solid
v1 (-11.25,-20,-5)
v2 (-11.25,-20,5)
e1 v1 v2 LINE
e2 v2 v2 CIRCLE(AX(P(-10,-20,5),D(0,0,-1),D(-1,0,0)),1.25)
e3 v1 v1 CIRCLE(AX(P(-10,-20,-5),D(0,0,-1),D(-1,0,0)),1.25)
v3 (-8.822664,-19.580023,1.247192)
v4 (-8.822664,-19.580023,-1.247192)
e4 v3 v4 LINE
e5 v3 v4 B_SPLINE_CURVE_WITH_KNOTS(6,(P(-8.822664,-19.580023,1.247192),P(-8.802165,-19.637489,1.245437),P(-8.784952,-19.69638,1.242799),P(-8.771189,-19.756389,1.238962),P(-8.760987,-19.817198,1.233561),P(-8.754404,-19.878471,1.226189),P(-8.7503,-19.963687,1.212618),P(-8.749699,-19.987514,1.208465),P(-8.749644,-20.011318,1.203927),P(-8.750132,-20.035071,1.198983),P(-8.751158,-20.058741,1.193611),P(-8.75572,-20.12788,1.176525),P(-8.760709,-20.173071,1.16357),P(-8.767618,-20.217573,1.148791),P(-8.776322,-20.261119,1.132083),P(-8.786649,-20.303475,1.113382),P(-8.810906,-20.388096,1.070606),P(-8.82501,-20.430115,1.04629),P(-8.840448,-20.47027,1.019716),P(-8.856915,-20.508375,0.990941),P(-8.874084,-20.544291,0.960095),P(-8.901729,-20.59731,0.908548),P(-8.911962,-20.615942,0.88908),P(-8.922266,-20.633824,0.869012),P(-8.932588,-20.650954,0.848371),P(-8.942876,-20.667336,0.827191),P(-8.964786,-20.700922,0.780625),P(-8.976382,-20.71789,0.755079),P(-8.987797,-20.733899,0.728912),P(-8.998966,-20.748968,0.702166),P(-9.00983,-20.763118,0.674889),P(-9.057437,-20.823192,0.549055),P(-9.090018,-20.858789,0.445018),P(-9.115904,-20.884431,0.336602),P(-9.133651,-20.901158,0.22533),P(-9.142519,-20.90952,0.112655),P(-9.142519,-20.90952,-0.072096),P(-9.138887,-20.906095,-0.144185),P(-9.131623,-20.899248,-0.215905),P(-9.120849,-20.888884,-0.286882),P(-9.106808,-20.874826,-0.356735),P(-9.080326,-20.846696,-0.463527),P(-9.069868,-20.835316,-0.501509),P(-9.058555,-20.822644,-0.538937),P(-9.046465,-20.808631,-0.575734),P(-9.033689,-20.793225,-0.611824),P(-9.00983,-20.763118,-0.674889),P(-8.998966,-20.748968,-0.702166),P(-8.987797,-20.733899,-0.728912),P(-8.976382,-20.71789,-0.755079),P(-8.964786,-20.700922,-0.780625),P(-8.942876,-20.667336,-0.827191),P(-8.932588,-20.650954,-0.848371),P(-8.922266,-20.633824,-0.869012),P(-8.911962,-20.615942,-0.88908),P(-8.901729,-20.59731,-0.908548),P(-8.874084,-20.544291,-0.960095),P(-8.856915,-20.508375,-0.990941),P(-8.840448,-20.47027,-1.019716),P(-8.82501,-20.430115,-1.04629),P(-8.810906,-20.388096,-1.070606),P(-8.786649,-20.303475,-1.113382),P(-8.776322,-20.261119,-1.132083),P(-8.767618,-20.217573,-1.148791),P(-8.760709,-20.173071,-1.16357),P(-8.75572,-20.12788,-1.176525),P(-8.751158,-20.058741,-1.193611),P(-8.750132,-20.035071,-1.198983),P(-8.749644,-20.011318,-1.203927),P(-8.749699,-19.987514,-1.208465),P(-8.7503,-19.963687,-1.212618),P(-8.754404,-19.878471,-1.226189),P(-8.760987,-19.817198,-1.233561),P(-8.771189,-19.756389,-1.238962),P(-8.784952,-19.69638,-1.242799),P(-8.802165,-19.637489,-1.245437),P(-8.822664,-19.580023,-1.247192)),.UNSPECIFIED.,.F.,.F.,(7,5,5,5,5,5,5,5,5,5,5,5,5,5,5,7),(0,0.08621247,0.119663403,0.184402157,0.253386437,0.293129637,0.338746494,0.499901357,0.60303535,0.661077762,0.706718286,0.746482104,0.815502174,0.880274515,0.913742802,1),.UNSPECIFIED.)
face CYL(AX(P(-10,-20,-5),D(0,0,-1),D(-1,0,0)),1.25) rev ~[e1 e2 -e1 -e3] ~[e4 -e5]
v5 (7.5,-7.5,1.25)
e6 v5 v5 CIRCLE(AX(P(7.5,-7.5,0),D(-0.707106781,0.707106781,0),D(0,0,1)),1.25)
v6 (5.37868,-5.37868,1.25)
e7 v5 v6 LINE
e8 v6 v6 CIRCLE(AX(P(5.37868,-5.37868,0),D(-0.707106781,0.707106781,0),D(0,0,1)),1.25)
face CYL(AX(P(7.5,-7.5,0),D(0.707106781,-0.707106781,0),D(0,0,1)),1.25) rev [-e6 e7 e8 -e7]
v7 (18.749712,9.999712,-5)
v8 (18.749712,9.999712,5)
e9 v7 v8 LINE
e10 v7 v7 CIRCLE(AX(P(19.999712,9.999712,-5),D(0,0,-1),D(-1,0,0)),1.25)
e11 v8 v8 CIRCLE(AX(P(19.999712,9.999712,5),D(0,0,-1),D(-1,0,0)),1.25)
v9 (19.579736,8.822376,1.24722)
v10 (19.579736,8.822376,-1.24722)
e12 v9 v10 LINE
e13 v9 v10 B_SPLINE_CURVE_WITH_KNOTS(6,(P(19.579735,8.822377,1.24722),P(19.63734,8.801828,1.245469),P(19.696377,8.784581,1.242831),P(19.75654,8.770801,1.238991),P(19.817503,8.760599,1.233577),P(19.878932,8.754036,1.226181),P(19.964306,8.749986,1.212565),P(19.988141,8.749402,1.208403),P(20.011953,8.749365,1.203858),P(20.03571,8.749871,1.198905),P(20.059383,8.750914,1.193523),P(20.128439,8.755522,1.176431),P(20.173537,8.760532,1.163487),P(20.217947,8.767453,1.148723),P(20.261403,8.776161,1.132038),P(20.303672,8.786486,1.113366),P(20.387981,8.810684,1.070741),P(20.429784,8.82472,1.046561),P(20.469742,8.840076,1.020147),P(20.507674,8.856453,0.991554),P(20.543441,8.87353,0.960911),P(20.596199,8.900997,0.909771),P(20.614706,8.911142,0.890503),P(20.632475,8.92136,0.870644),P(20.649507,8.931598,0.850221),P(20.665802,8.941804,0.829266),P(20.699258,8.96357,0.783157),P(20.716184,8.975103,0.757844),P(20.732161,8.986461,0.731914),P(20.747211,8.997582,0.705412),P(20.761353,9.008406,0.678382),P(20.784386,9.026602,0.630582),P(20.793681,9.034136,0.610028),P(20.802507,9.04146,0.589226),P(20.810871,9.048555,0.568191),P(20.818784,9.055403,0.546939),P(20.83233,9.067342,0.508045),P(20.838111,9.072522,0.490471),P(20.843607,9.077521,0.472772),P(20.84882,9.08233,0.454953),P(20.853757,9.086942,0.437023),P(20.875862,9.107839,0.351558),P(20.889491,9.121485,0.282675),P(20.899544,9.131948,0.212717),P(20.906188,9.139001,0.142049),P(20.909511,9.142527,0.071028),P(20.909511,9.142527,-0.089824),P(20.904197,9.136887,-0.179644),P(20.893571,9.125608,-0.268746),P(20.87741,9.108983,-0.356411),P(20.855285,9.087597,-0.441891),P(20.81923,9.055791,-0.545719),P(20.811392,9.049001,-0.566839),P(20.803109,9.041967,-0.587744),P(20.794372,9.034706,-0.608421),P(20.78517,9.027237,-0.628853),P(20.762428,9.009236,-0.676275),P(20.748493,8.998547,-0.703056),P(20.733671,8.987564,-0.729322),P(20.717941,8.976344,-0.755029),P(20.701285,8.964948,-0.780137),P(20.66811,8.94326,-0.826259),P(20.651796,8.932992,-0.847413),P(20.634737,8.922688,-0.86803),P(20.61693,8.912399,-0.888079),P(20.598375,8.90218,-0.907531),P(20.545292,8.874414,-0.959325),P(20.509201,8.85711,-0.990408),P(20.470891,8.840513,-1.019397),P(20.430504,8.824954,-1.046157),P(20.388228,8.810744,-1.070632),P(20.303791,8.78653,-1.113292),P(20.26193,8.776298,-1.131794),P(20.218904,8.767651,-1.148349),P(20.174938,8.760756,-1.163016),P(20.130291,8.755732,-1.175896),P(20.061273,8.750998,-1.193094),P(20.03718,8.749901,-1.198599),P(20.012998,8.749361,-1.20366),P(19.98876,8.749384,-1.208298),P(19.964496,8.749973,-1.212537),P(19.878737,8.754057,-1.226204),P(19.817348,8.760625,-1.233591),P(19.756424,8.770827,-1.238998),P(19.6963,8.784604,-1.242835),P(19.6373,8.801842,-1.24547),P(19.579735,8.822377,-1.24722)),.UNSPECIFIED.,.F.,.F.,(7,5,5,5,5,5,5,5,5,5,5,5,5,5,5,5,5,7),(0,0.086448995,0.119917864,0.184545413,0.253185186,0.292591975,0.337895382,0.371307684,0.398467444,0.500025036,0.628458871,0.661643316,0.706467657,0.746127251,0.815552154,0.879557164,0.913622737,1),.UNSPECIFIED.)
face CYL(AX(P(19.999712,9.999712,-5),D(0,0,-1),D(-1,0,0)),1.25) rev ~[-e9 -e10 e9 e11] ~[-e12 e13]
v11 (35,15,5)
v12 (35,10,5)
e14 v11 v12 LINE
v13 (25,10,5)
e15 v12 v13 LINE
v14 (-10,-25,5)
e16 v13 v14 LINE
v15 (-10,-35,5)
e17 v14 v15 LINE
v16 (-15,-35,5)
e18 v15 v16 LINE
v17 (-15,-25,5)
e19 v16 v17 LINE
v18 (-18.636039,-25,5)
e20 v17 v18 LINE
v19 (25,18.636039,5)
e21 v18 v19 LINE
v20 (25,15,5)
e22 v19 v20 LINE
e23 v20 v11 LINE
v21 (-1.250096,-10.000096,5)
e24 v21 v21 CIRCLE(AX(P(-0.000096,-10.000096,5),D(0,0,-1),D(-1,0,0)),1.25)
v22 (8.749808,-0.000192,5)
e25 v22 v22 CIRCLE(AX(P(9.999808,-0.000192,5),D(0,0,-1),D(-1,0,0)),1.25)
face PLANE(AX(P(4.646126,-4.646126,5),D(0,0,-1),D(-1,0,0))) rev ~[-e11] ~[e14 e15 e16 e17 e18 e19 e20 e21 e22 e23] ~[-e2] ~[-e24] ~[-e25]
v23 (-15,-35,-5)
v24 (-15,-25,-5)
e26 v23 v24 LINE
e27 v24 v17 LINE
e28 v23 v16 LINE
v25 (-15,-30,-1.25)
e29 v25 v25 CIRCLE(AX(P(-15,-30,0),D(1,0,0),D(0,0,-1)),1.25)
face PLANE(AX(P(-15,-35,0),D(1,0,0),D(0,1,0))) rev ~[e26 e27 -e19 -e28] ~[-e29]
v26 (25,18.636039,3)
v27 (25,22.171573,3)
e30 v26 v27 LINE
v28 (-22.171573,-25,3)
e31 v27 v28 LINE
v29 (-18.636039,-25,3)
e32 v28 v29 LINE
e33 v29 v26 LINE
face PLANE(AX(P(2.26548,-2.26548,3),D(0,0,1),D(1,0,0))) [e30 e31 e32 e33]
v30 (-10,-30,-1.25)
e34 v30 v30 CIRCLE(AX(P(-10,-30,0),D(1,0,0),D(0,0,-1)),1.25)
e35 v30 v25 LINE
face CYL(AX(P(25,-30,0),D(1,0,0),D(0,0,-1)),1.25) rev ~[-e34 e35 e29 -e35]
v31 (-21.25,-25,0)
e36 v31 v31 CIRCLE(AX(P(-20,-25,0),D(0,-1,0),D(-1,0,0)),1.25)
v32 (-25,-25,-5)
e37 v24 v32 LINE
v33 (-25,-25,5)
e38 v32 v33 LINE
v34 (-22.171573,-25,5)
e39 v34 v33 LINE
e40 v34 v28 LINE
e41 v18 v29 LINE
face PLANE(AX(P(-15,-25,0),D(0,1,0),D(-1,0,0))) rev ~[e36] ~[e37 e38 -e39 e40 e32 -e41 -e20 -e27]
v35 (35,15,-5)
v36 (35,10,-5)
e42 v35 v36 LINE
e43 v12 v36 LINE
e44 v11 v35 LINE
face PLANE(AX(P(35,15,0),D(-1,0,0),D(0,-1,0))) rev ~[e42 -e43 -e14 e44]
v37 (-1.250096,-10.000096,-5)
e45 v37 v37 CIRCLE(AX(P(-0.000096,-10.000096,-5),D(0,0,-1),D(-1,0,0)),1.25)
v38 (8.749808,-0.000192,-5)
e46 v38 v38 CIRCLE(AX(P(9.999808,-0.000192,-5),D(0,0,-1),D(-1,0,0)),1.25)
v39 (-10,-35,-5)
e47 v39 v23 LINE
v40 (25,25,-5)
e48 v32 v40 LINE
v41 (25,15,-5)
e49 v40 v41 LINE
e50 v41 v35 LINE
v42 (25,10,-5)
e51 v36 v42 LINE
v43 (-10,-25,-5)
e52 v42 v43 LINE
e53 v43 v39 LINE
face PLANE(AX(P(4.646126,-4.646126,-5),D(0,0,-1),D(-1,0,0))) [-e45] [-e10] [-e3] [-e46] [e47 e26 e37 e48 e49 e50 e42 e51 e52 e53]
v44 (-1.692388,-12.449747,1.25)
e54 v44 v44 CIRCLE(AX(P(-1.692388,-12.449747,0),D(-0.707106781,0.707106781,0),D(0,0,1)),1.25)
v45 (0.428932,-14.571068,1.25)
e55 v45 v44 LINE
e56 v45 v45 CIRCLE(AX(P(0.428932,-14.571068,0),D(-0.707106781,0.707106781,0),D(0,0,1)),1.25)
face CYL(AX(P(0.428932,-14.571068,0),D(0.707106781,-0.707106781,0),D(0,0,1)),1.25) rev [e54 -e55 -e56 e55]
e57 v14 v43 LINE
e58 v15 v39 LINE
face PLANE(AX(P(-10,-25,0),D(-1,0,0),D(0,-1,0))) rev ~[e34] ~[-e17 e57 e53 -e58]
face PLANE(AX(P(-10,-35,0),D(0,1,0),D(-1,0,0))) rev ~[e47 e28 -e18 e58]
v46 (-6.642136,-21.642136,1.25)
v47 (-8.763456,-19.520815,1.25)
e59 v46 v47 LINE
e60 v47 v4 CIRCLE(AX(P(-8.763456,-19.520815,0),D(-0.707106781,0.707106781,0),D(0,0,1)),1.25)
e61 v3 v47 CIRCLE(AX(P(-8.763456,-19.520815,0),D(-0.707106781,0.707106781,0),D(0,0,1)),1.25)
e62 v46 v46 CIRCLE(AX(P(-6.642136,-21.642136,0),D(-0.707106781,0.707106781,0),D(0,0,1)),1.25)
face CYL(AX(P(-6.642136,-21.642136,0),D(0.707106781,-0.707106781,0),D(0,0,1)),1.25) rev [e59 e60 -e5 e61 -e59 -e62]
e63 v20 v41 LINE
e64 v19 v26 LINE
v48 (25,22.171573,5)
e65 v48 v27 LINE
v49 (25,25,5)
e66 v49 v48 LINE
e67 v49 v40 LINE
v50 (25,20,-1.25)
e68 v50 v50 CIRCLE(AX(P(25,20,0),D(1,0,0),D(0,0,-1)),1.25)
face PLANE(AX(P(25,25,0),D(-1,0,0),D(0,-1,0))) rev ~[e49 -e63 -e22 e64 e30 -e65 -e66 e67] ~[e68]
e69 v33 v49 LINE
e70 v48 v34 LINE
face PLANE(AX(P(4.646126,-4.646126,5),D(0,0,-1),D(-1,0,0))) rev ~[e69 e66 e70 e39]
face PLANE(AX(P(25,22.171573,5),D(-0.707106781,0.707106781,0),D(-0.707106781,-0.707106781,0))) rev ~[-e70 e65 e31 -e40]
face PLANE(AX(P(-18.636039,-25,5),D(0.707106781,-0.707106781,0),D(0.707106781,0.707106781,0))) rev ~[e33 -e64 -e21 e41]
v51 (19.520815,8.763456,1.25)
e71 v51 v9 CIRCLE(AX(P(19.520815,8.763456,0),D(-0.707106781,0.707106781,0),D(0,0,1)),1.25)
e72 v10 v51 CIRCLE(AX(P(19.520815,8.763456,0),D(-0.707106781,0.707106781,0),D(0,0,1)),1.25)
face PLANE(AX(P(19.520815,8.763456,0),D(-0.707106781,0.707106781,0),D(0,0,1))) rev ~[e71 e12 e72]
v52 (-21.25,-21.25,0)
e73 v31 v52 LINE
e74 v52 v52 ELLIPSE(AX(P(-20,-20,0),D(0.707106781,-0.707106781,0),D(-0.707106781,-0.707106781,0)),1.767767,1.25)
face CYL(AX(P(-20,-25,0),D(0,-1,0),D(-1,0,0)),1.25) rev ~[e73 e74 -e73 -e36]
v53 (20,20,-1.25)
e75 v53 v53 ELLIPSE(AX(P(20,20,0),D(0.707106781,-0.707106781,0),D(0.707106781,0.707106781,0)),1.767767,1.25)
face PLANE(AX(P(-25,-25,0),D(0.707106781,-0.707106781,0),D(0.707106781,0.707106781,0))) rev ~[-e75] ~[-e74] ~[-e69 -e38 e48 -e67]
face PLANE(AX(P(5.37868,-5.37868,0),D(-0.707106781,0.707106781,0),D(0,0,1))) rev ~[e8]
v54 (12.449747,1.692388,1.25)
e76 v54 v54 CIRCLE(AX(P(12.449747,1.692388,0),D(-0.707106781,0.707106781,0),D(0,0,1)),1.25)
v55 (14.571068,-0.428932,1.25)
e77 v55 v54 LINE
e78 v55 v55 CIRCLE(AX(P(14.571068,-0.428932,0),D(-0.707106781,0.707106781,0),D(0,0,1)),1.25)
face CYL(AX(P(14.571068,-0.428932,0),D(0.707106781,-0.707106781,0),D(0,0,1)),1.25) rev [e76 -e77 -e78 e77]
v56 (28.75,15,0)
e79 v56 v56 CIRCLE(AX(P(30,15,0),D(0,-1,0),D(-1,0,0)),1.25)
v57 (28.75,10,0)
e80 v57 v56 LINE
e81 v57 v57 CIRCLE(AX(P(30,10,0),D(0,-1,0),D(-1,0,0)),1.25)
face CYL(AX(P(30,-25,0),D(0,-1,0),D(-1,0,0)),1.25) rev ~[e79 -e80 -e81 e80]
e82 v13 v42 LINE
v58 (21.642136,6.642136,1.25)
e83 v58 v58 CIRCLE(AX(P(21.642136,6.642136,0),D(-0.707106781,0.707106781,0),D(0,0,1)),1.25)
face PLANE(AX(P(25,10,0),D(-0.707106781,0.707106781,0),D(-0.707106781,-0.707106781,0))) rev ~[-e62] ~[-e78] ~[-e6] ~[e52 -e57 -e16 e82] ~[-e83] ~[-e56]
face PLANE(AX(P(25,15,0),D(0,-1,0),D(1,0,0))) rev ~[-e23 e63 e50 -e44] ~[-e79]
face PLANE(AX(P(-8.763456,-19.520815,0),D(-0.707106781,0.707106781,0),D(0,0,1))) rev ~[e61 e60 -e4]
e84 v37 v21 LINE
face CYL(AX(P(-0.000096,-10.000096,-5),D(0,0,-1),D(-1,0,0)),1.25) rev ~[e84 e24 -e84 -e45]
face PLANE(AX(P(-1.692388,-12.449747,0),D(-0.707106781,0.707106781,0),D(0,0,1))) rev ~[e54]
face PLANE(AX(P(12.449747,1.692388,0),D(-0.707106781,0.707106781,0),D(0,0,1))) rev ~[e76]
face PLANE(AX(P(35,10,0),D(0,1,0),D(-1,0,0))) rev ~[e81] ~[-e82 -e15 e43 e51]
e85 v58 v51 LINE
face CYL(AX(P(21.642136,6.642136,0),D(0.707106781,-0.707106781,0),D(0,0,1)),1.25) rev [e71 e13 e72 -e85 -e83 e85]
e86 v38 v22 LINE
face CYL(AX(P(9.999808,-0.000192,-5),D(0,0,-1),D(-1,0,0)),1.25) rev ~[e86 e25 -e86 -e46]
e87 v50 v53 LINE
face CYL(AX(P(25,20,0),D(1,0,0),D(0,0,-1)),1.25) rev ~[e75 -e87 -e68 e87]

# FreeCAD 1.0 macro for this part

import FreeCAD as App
import Part
import Sketcher

V = App.Vector
Q = App.Units.Quantity

doc = App.newDocument("Part")
params = doc.addObject("Spreadsheet::Sheet", "Params")
for row, (alias, value) in enumerate([
    ("sketch1_width", "10 mm"),
    ("sketch1_width2", "5 mm"),
    ("pad1_length", "10 mm"),
    ("sketch2_diameter", "2.5 mm"),
    ("sketch3_diameter", "2.5 mm"),
    ("pocket3_length", "2 mm"),
    ("sketch5_diameter", "2.5 mm"),
    ("pocket4_length", "3 mm"),
    ("linearpattern_pitch", "10 mm"),
    ("sketch6_diameter", "2.5 mm"),
    ("linearpattern2_pitch", "14.142 mm"),
], start=1):
    params.set(f"A{row}", alias)
    params.set(f"B{row}", "=" + value)
    params.setAlias(f"B{row}", alias)

body = doc.addObject("PartDesign::Body", "Body")

# Sketch on XY plane
sketch1 = doc.addObject("Sketcher::SketchObject", "Sketch")
body.addObject(sketch1)
sketch1.AttachmentSupport = (doc.XY_Plane, [""])
sketch1.MapMode = "FlatFace"
sketch1.addGeometry([
    Part.LineSegment(V(25, 25, 0), V(-25, -25, 0)),  # 0
    Part.LineSegment(V(-25, -25, 0), V(-15, -25, 0)),  # 1
    Part.LineSegment(V(-15, -25, 0), V(-15, -35, 0)),  # 2
    Part.LineSegment(V(-15, -35, 0), V(-10, -35, 0)),  # 3
    Part.LineSegment(V(-10, -35, 0), V(-10, -25, 0)),  # 4
    Part.LineSegment(V(-10, -25, 0), V(25, 10, 0)),  # 5
    Part.LineSegment(V(25, 10, 0), V(35, 10, 0)),  # 6
    Part.LineSegment(V(35, 10, 0), V(35, 15, 0)),  # 7
    Part.LineSegment(V(35, 15, 0), V(25, 15, 0)),  # 8
    Part.LineSegment(V(25, 15, 0), V(25, 25, 0)),  # 9
], False)
sketch1.addConstraint([
    Sketcher.Constraint("Coincident", 0, 2, 1, 1),
    Sketcher.Constraint("Coincident", 1, 2, 2, 1),
    Sketcher.Constraint("Coincident", 2, 2, 3, 1),
    Sketcher.Constraint("Coincident", 3, 2, 4, 1),
    Sketcher.Constraint("Coincident", 4, 2, 5, 1),
    Sketcher.Constraint("Coincident", 5, 2, 6, 1),
    Sketcher.Constraint("Coincident", 6, 2, 7, 1),
    Sketcher.Constraint("Coincident", 7, 2, 8, 1),
    Sketcher.Constraint("Coincident", 8, 2, 9, 1),
    Sketcher.Constraint("Coincident", 9, 2, 0, 1),
    Sketcher.Constraint("Horizontal", 1),
    Sketcher.Constraint("Vertical", 2),
    Sketcher.Constraint("Horizontal", 3),
    Sketcher.Constraint("Vertical", 4),
    Sketcher.Constraint("Horizontal", 6),
    Sketcher.Constraint("Vertical", 7),
    Sketcher.Constraint("Horizontal", 8),
    Sketcher.Constraint("Vertical", 9),
    Sketcher.Constraint("Symmetric", 0, 2, 9, 2, -1, 1),
    Sketcher.Constraint("Parallel", 0, 5),
    Sketcher.Constraint("Horizontal", 1, 2, 4, 2),
    Sketcher.Constraint("Vertical", 5, 2, 8, 2),
    Sketcher.Constraint("Equal", 1, 6),
    Sketcher.Constraint("Equal", 8, 2),
    Sketcher.Constraint("Equal", 3, 7),
    Sketcher.Constraint("Equal", 4, 9),
    Sketcher.Constraint("DistanceX", 1, 1, 1, 2, Q("10 mm")),
    Sketcher.Constraint("DistanceX", 3, 1, 3, 2, Q("5 mm")),
    Sketcher.Constraint("DistanceX", 0, 2, -1, 1, Q("25 mm")),
])
sketch1.setExpression("Constraints[26]", "Params.sketch1_width")
sketch1.setExpression("Constraints[27]", "Params.sketch1_width2")
pad1 = doc.addObject("PartDesign::Pad", "Pad")
body.addObject(pad1)
pad1.Profile = sketch1
pad1.setExpression("Length", "Params.pad1_length")
pad1.Midplane = True

# Sketch on YZ plane
sketch2 = doc.addObject("Sketcher::SketchObject", "Sketch001")
body.addObject(sketch2)
sketch2.AttachmentSupport = (doc.YZ_Plane, [""])
sketch2.MapMode = "FlatFace"
sketch2.AttachmentOffset = App.Placement(V(0, 0, 25), App.Rotation())
sketch2.addGeometry([
    Part.Circle(V(-30, 0, 0), V(0, 0, 1), 1.2),
    Part.Circle(V(20, 0, 0), V(0, 0, 1), 1.2),
], False)
sketch2.addConstraint([
    Sketcher.Constraint("Equal", 0, 1),
    Sketcher.Constraint("PointOnObject", 0, 3, -1),
    Sketcher.Constraint("PointOnObject", 1, 3, -1),
    Sketcher.Constraint("Diameter", 0, Q("2.5 mm")),
    Sketcher.Constraint("DistanceX", 0, 3, -1, 1, Q("30 mm")),
    Sketcher.Constraint("DistanceX", -1, 1, 1, 3, Q("20 mm")),
])
sketch2.setExpression("Constraints[3]", "Params.sketch2_diameter")
pocket1 = doc.addObject("PartDesign::Pocket", "Pocket")
body.addObject(pocket1)
pocket1.Profile = sketch2
pocket1.Type = "ThroughAll"

# Sketch on XZ plane
sketch3 = doc.addObject("Sketcher::SketchObject", "Sketch002")
body.addObject(sketch3)
sketch3.AttachmentSupport = (doc.XZ_Plane, [""])
sketch3.MapMode = "FlatFace"
sketch3.AttachmentOffset = App.Placement(V(0, 0, 25), App.Rotation())
sketch3.addGeometry([
    Part.Circle(V(-20, 0, 0), V(0, 0, 1), 1.2),
    Part.Circle(V(30, 0, 0), V(0, 0, 1), 1.2),
], False)
sketch3.addConstraint([
    Sketcher.Constraint("Equal", 0, 1),
    Sketcher.Constraint("PointOnObject", 0, 3, -1),
    Sketcher.Constraint("PointOnObject", 1, 3, -1),
    Sketcher.Constraint("Diameter", 0, Q("2.5 mm")),
    Sketcher.Constraint("DistanceX", 0, 3, -1, 1, Q("20 mm")),
    Sketcher.Constraint("DistanceX", -1, 1, 1, 3, Q("30 mm")),
])
sketch3.setExpression("Constraints[3]", "Params.sketch3_diameter")
pocket2 = doc.addObject("PartDesign::Pocket", "Pocket001")
body.addObject(pocket2)
pocket2.Profile = sketch3
pocket2.Type = "ThroughAll"

# Sketch on XY plane
sketch4 = doc.addObject("Sketcher::SketchObject", "Sketch003")
body.addObject(sketch4)
sketch4.AttachmentSupport = (doc.XY_Plane, [""])
sketch4.MapMode = "FlatFace"
sketch4.AttachmentOffset = App.Placement(V(0, 0, 5), App.Rotation())
sketch4.addGeometry([
    Part.LineSegment(V(25, 22.2, 0), V(-22.2, -25, 0)),
    Part.LineSegment(V(-22.2, -25, 0), V(-18.6, -25, 0)),
    Part.LineSegment(V(-18.6, -25, 0), V(25, 18.6, 0)),
    Part.LineSegment(V(25, 18.6, 0), V(25, 22.2, 0)),
], False)
sketch4.addConstraint([
    Sketcher.Constraint("Coincident", 0, 2, 1, 1),
    Sketcher.Constraint("Coincident", 1, 2, 2, 1),
    Sketcher.Constraint("Coincident", 2, 2, 3, 1),
    Sketcher.Constraint("Coincident", 3, 2, 0, 1),
    Sketcher.Constraint("Horizontal", 1),
    Sketcher.Constraint("Vertical", 3),
    Sketcher.Constraint("Parallel", 0, 2),
    Sketcher.Constraint("Equal", 1, 3),
    Sketcher.Constraint("DistanceY", 0, 2, -1, 1, Q("25 mm")),
    Sketcher.Constraint("DistanceX", -1, 1, 2, 2, Q("25 mm")),
    Sketcher.Constraint("Distance", 0, Q("66.710678 mm")),
    Sketcher.Constraint("Distance", 2, Q("61.710678 mm")),
])
pocket3 = doc.addObject("PartDesign::Pocket", "Pocket002")
body.addObject(pocket3)
pocket3.Profile = sketch4
pocket3.setExpression("Length", "Params.pocket3_length")

# Sketch on an angled plane
sketch5 = doc.addObject("Sketcher::SketchObject", "Sketch004")
body.addObject(sketch5)
sketch5.Placement = App.Placement(V(7.5, -7.5, 0), App.Rotation(V(0, 0, 1), V(0.707106781, 0.707106781, 0), V(-0.707106781, 0.707106781, 0), "ZXY"))
sketch5.addGeometry(Part.Circle(V(0, 20, 0), V(0, 0, 1), 1.2), False)
sketch5.addConstraint([
    Sketcher.Constraint("PointOnObject", 0, 3, -2),
    Sketcher.Constraint("Diameter", 0, Q("2.5 mm")),
    Sketcher.Constraint("DistanceY", -1, 1, 0, 3, Q("20 mm")),
])
sketch5.setExpression("Constraints[1]", "Params.sketch5_diameter")
pocket4 = doc.addObject("PartDesign::Pocket", "Pocket003")
body.addObject(pocket4)
pocket4.Profile = sketch5
pocket4.setExpression("Length", "Params.pocket4_length")
pocket4.Reversed = True
doc.recompute()

datumline = doc.addObject("PartDesign::Line", "DatumLine")
body.addObject(datumline)
datumline.Placement = App.Placement(V(0, 0, 0), App.Rotation(V(0, 0, 1), V(-0.707106781, -0.707106781, 0)))
linearpattern = doc.addObject("PartDesign::LinearPattern", "LinearPattern")
body.addObject(linearpattern)
linearpattern.Originals = [pocket4]
linearpattern.Direction = (datumline, [""])
linearpattern.Mode = "offset"
linearpattern.setExpression("Offset", "Params.linearpattern_pitch")
linearpattern.Occurrences = 5
body.Tip = linearpattern

# Sketch on XY plane
sketch6 = doc.addObject("Sketcher::SketchObject", "Sketch005")
body.addObject(sketch6)
sketch6.AttachmentSupport = (doc.XY_Plane, [""])
sketch6.MapMode = "FlatFace"
sketch6.AttachmentOffset = App.Placement(V(0, 0, -5), App.Rotation())
sketch6.addGeometry(Part.Circle(V(-10, -20, 0), V(0, 0, 1), 1.2), False)
sketch6.addConstraint([
    Sketcher.Constraint("Diameter", 0, Q("2.5 mm")),
    Sketcher.Constraint("DistanceX", 0, 3, -1, 1, Q("10 mm")),
    Sketcher.Constraint("DistanceY", 0, 3, -1, 1, Q("20 mm")),
])
sketch6.setExpression("Constraints[0]", "Params.sketch6_diameter")
pocket5 = doc.addObject("PartDesign::Pocket", "Pocket004")
body.addObject(pocket5)
pocket5.Profile = sketch6
pocket5.Type = "ThroughAll"
pocket5.Reversed = True
doc.recompute()

datumline2 = doc.addObject("PartDesign::Line", "DatumLine001")
body.addObject(datumline2)
datumline2.Placement = App.Placement(V(0, 0, 0), App.Rotation(V(0, 0, 1), V(0.707106781, 0.707106781, 0)))
linearpattern2 = doc.addObject("PartDesign::LinearPattern", "LinearPattern001")
body.addObject(linearpattern2)
linearpattern2.Originals = [pocket5]
linearpattern2.Direction = (datumline2, [""])
linearpattern2.Mode = "offset"
linearpattern2.setExpression("Offset", "Params.linearpattern2_pitch")
linearpattern2.Occurrences = 4
body.Tip = linearpattern2

doc.recompute()
